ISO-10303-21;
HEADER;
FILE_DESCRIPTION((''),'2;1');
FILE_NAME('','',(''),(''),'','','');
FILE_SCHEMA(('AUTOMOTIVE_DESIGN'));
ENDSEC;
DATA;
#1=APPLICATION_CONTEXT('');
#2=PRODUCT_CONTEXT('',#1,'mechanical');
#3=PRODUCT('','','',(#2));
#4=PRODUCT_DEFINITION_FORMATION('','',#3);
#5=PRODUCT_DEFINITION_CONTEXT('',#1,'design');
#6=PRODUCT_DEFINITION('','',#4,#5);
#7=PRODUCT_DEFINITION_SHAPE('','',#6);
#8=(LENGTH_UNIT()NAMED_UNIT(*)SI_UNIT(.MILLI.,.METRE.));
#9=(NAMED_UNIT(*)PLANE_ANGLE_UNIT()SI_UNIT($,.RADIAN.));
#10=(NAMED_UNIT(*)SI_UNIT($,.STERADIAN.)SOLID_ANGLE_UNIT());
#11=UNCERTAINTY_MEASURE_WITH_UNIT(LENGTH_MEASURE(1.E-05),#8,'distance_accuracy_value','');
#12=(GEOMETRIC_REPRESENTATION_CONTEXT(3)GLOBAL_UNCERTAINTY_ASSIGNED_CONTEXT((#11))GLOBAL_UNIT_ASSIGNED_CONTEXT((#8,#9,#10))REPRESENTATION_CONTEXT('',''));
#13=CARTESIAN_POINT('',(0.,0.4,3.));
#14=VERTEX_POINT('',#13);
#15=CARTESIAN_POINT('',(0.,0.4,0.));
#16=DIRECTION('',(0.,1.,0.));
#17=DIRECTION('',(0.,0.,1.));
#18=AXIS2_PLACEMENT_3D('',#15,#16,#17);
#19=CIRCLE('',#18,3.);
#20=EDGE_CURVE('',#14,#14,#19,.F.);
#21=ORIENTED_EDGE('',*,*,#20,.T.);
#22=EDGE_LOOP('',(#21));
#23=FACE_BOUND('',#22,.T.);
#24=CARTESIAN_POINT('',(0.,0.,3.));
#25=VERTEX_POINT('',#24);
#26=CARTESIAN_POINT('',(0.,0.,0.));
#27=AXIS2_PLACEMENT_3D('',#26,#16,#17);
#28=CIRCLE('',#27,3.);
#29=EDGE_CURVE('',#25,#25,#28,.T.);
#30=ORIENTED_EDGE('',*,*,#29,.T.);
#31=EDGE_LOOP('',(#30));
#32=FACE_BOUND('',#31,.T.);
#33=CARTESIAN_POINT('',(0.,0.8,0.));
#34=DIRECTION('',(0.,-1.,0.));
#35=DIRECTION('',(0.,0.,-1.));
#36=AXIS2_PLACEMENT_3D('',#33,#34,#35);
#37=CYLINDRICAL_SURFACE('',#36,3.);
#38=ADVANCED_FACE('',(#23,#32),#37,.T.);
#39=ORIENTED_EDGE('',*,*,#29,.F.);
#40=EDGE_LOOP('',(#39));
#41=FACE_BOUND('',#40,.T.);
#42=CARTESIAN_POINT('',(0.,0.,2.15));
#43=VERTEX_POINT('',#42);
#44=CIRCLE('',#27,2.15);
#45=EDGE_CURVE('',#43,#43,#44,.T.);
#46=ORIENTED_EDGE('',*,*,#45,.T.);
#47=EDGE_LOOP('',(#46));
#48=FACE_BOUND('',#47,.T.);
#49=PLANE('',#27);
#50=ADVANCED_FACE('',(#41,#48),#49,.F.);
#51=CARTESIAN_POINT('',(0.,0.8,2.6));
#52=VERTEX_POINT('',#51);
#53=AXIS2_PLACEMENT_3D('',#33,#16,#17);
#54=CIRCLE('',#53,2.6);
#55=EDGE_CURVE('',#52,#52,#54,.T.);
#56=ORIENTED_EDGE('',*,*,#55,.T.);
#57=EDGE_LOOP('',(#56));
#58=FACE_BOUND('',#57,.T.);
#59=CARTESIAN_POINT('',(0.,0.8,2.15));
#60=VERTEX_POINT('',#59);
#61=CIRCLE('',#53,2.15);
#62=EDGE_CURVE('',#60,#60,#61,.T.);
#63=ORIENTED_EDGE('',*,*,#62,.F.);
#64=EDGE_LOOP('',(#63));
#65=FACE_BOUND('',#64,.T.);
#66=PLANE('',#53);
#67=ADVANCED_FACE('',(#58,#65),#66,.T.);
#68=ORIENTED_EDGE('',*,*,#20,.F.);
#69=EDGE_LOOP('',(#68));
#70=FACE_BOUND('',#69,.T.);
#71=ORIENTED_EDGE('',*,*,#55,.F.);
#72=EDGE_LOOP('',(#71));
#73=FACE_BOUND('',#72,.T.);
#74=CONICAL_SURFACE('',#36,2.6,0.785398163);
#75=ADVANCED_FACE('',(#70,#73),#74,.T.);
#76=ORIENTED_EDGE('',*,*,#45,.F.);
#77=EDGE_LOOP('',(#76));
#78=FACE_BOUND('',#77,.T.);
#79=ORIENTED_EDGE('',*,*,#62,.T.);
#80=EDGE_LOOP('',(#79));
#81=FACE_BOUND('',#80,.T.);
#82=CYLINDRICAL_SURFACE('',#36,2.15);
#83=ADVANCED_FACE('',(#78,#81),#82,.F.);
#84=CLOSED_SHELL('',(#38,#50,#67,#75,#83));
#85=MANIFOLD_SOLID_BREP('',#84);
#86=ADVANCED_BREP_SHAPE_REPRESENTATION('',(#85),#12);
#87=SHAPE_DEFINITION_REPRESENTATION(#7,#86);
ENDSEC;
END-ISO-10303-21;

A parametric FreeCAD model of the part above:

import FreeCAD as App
import Part
import Sketcher
from FreeCAD import Vector


def edges_at(feature, points):
    """Names of the edges that pass closest to the given points."""
    edges = feature.Shape.Edges
    near = lambda p: min(range(len(edges)), key=lambda i: edges[i].distToShape(Part.Vertex(*p))[0])
    return sorted({f"Edge{near(p) + 1}" for p in points})

doc = App.newDocument("Part")
body = doc.addObject("PartDesign::Body", "Body")

sketch1 = doc.addObject("Sketcher::SketchObject", "Sketch")
body.addObject(sketch1)
sketch1.AttachmentSupport = (doc.XZ_Plane, [""])
sketch1.MapMode = "FlatFace"
sketch1.addGeometry([
    Part.Circle(Vector(0, 0, 0), Vector(0, 0, 1), 3),
    Part.Circle(Vector(0, 0, 0), Vector(0, 0, 1), 2.1),
], False)
sketch1.addConstraint([
    Sketcher.Constraint("Coincident", 0, 3, -1, 1),
    Sketcher.Constraint("Coincident", 1, 3, -1, 1),
    Sketcher.Constraint("Diameter", 0, 6.0),
    Sketcher.Constraint("Diameter", 1, 4.3),
])
pad1 = doc.addObject("PartDesign::Pad", "Pad")
body.addObject(pad1)
pad1.Profile = sketch1
pad1.Length = 0.8
pad1.Reversed = True
doc.recompute()

chamfer = doc.addObject("PartDesign::Chamfer", "Chamfer")
body.addObject(chamfer)
chamfer.Base = (pad1, edges_at(pad1, [(-3, 0.8, 0)]))
chamfer.Size = 0.4

doc.recompute()
